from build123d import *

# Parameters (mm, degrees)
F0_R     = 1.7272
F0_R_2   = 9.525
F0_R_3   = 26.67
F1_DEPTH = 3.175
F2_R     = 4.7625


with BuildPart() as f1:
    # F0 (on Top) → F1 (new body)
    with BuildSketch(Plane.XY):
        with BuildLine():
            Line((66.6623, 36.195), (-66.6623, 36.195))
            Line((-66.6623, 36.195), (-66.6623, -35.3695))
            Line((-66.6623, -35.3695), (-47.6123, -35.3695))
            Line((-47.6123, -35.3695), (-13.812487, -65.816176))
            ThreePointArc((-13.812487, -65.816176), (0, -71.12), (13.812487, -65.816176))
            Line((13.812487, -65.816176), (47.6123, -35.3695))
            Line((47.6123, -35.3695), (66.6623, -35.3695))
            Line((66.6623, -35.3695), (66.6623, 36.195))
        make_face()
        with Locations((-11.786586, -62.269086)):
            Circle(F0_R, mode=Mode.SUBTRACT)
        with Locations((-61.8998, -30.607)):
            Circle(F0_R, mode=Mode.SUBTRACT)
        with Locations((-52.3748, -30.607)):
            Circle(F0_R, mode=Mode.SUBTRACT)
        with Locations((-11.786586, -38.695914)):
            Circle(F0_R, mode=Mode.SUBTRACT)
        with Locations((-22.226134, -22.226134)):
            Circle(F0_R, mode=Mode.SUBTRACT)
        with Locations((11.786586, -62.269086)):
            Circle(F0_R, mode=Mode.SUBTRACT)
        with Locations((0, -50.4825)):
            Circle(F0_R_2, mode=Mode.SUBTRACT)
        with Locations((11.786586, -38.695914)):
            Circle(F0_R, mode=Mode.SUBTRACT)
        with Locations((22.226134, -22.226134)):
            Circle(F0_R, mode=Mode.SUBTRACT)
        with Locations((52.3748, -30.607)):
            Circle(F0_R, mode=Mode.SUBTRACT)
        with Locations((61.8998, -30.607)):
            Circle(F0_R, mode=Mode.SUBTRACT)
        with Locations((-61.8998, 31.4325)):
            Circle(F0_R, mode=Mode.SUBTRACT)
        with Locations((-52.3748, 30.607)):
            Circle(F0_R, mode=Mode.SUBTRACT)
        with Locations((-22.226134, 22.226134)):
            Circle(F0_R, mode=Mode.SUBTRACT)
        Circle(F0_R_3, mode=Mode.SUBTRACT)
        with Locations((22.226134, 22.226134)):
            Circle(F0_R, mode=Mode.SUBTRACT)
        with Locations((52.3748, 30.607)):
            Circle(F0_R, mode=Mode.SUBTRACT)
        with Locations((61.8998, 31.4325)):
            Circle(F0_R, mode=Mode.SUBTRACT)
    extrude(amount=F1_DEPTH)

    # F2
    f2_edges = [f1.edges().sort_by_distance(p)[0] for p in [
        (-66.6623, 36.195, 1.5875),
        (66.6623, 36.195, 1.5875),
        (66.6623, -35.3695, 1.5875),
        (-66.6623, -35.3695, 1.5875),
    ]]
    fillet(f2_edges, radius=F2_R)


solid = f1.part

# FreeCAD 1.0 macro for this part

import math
import FreeCAD as App
import Part
import Sketcher

V = App.Vector
Q = App.Units.Quantity


def edges_at(feature, points):
    """Names of the edges that pass closest to the given points."""
    edges = feature.Shape.Edges
    near = lambda p: min(range(len(edges)), key=lambda i: edges[i].distToShape(Part.Vertex(*p))[0])
    return sorted({f"Edge{near(p) + 1}" for p in points})

doc = App.newDocument("Part")
params = doc.addObject("Spreadsheet::Sheet", "Params")
for row, (alias, value) in enumerate([
    ("sketch1_diameter", "2.1 in"),
    ("sketch1_diameter2", "0.75 in"),
    ("sketch1_diameter3", "0.136 in"),
    ("sketch1_radius", "0.8125 in"),
    ("sketch1_width", "0.75 in"),
    ("pad1_length", "0.125 in"),
    ("fillet_radius", "0.1875 in"),
], start=1):
    params.set(f"A{row}", alias)
    params.set(f"B{row}", "=" + value)
    params.setAlias(f"B{row}", alias)

body = doc.addObject("PartDesign::Body", "Body")

# Sketch on XY plane
sketch1 = body.newObject("Sketcher::SketchObject", "Sketch")
sketch1.AttachmentSupport = (doc.getObject("XY_Plane"), [""])
sketch1.MapMode = "FlatFace"
sketch1.addGeometry(Part.LineSegment(V(66.7, 36.2, 0), V(-66.7, 36.2, 0)), False)
sketch1.addGeometry(Part.LineSegment(V(-66.7, 36.2, 0), V(-66.7, -35.4, 0)), False)
sketch1.addGeometry(Part.LineSegment(V(-66.7, -35.4, 0), V(-47.6, -35.4, 0)), False)
sketch1.addGeometry(Part.LineSegment(V(-47.6, -35.4, 0), V(-13.8, -65.8, 0)), False)
sketch1.addGeometry(Part.ArcOfCircle(Part.Circle(V(0, -50.5, 0), V(0, 0, 1), 20.6), math.radians(-132), math.radians(-48)), False)
sketch1.addGeometry(Part.LineSegment(V(13.8, -65.8, 0), V(47.6, -35.4, 0)), False)
sketch1.addGeometry(Part.LineSegment(V(47.6, -35.4, 0), V(66.7, -35.4, 0)), False)
sketch1.addGeometry(Part.LineSegment(V(66.7, -35.4, 0), V(66.7, 36.2, 0)), False)
sketch1.addGeometry(Part.Circle(V(-11.8, -62.3, 0), V(0, 0, 1), 1.7), False)
sketch1.addGeometry(Part.Circle(V(-61.9, -30.6, 0), V(0, 0, 1), 1.7), False)
sketch1.addGeometry(Part.Circle(V(-52.4, -30.6, 0), V(0, 0, 1), 1.7), False)
sketch1.addGeometry(Part.Circle(V(-11.8, -38.7, 0), V(0, 0, 1), 1.7), False)
sketch1.addGeometry(Part.Circle(V(-22.2, -22.2, 0), V(0, 0, 1), 1.7), False)
sketch1.addGeometry(Part.Circle(V(11.8, -62.3, 0), V(0, 0, 1), 1.7), False)
sketch1.addGeometry(Part.Circle(V(0, -50.5, 0), V(0, 0, 1), 9.5), False)
sketch1.addGeometry(Part.Circle(V(11.8, -38.7, 0), V(0, 0, 1), 1.7), False)
sketch1.addGeometry(Part.Circle(V(22.2, -22.2, 0), V(0, 0, 1), 1.7), False)
sketch1.addGeometry(Part.Circle(V(52.4, -30.6, 0), V(0, 0, 1), 1.7), False)
sketch1.addGeometry(Part.Circle(V(61.9, -30.6, 0), V(0, 0, 1), 1.7), False)
sketch1.addGeometry(Part.Circle(V(-61.9, 31.4, 0), V(0, 0, 1), 1.7), False)
sketch1.addGeometry(Part.Circle(V(-52.4, 30.6, 0), V(0, 0, 1), 1.7), False)
sketch1.addGeometry(Part.Circle(V(-22.2, 22.2, 0), V(0, 0, 1), 1.7), False)
sketch1.addGeometry(Part.Circle(V(0, 0, 0), V(0, 0, 1), 26.7), False)
sketch1.addGeometry(Part.Circle(V(22.2, 22.2, 0), V(0, 0, 1), 1.7), False)
sketch1.addGeometry(Part.Circle(V(52.4, 30.6, 0), V(0, 0, 1), 1.7), False)
sketch1.addGeometry(Part.Circle(V(61.9, 31.4, 0), V(0, 0, 1), 1.7), False)
sketch1.addConstraint(Sketcher.Constraint("Coincident", 0, 2, 1, 1))
sketch1.addConstraint(Sketcher.Constraint("Coincident", 1, 2, 2, 1))
sketch1.addConstraint(Sketcher.Constraint("Coincident", 2, 2, 3, 1))
sketch1.addConstraint(Sketcher.Constraint("Tangent", 3, 2, 4, 1))
sketch1.addConstraint(Sketcher.Constraint("Tangent", 4, 2, 5, 1))
sketch1.addConstraint(Sketcher.Constraint("Coincident", 5, 2, 6, 1))
sketch1.addConstraint(Sketcher.Constraint("Coincident", 6, 2, 7, 1))
sketch1.addConstraint(Sketcher.Constraint("Coincident", 7, 2, 0, 1))
sketch1.addConstraint(Sketcher.Constraint("Horizontal", 0))
sketch1.addConstraint(Sketcher.Constraint("Vertical", 1))
sketch1.addConstraint(Sketcher.Constraint("Horizontal", 2))
sketch1.addConstraint(Sketcher.Constraint("Horizontal", 6))
sketch1.addConstraint(Sketcher.Constraint("Vertical", 7))
sketch1.addConstraint(Sketcher.Constraint("Coincident", 22, 3, -1, 1))
sketch1.addConstraint(Sketcher.Constraint("Coincident", 14, 3, 4, 3))
sketch1.addConstraint(Sketcher.Constraint("Equal", 8, 9))
sketch1.addConstraint(Sketcher.Constraint("Equal", 9, 10))
sketch1.addConstraint(Sketcher.Constraint("Equal", 10, 11))
sketch1.addConstraint(Sketcher.Constraint("Equal", 11, 12))
sketch1.addConstraint(Sketcher.Constraint("Equal", 12, 13))
sketch1.addConstraint(Sketcher.Constraint("Equal", 13, 15))
sketch1.addConstraint(Sketcher.Constraint("Equal", 15, 16))
sketch1.addConstraint(Sketcher.Constraint("Equal", 16, 17))
sketch1.addConstraint(Sketcher.Constraint("Equal", 17, 18))
sketch1.addConstraint(Sketcher.Constraint("Equal", 18, 19))
sketch1.addConstraint(Sketcher.Constraint("Equal", 19, 20))
sketch1.addConstraint(Sketcher.Constraint("Equal", 20, 21))
sketch1.addConstraint(Sketcher.Constraint("Equal", 21, 23))
sketch1.addConstraint(Sketcher.Constraint("Equal", 23, 24))
sketch1.addConstraint(Sketcher.Constraint("Equal", 24, 25))
sketch1.addConstraint(Sketcher.Constraint("Symmetric", 17, 3, 20, 3, -1, 1))
sketch1.addConstraint(Sketcher.Constraint("Symmetric", 16, 3, 21, 3, -1, 1))
sketch1.addConstraint(Sketcher.Constraint("Symmetric", 12, 3, 23, 3, -1, 1))
sketch1.addConstraint(Sketcher.Constraint("Symmetric", 10, 3, 24, 3, -1, 1))
sketch1.addConstraint(Sketcher.Constraint("Symmetric", 8, 3, 13, 3, -2))
sketch1.addConstraint(Sketcher.Constraint("Symmetric", 11, 3, 15, 3, -2))
sketch1.addConstraint(Sketcher.Constraint("Symmetric", 12, 3, 16, 3, -2))
sketch1.addConstraint(Sketcher.Constraint("Symmetric", 10, 3, 17, 3, -2))
sketch1.addConstraint(Sketcher.Constraint("Symmetric", 9, 3, 18, 3, -2))
sketch1.addConstraint(Sketcher.Constraint("Symmetric", 19, 3, 25, 3, -2))
sketch1.addConstraint(Sketcher.Constraint("Symmetric", 3, 2, 4, 2, -2))
sketch1.addConstraint(Sketcher.Constraint("Symmetric", 1, 2, 6, 2, -2))
sketch1.addConstraint(Sketcher.Constraint("Horizontal", 9, 3, 10, 3))
sketch1.addConstraint(Sketcher.Constraint("Vertical", 8, 3, 11, 3))
sketch1.addConstraint(Sketcher.Constraint("Vertical", 9, 3, 19, 3))
sketch1.addConstraint(Sketcher.Constraint("Diameter", 22, Q("2.1 in")))
sketch1.addConstraint(Sketcher.Constraint("Diameter", 14, Q("0.75 in")))
sketch1.addConstraint(Sketcher.Constraint("Diameter", 8, Q("0.136 in")))
sketch1.addConstraint(Sketcher.Constraint("Radius", 4, Q("0.8125 in")))
sketch1.addConstraint(Sketcher.Constraint("DistanceX", 2, 1, 2, 2, Q("0.75 in")))
sketch1.addConstraint(Sketcher.Constraint("DistanceX", 0, 2, 0, 1, Q("5.249 in")))
sketch1.addConstraint(Sketcher.Constraint("DistanceY", 10, 3, 20, 3, Q("2.41 in")))
sketch1.addConstraint(Sketcher.Constraint("DistanceY", 20, 3, 0, 2, Q("0.22 in")))
sketch1.addConstraint(Sketcher.Constraint("DistanceY", 1, 2, 1, 1, Q("2.8175 in")))
sketch1.addConstraint(Sketcher.Constraint("DistanceX", 9, 3, -1, 1, Q("2.437 in")))
sketch1.addConstraint(Sketcher.Constraint("DistanceX", 10, 3, -1, 1, Q("2.062 in")))
sketch1.addConstraint(Sketcher.Constraint("DistanceY", 19, 3, 0, 2, Q("0.1875 in")))
sketch1.addConstraint(Sketcher.Constraint("DistanceY", 4, 3, -1, 1, Q("1.9875 in")))
sketch1.addConstraint(Sketcher.Constraint("DistanceX", 3, 2, 8, 3, 2.025901))
sketch1.addConstraint(Sketcher.Constraint("DistanceY", 8, 3, 11, 3, 23.573172))
sketch1.addConstraint(Sketcher.Constraint("DistanceY", 11, 3, 12, 3, 16.46978))
sketch1.addConstraint(Sketcher.Constraint("DistanceX", 12, 3, 13, 3, 34.01272))
sketch1.addConstraint(Sketcher.Constraint("DistanceY", 11, 3, 21, 3, 60.922048))
sketch1.setExpression("Constraints[45]", "Params.sketch1_diameter")
sketch1.setExpression("Constraints[46]", "Params.sketch1_diameter2")
sketch1.setExpression("Constraints[47]", "Params.sketch1_diameter3")
sketch1.setExpression("Constraints[48]", "Params.sketch1_radius")
sketch1.setExpression("Constraints[49]", "Params.sketch1_width")
pad1 = body.newObject("PartDesign::Pad", "Pad")
pad1.Profile = sketch1
pad1.setExpression("Length", "Params.pad1_length")
doc.recompute()

fillet = body.newObject("PartDesign::Fillet", "Fillet")
fillet.Base = (pad1, edges_at(pad1, [
    (-66.662, 36.195, 1.587),
    (66.662, 36.195, 1.587),
    (66.662, -35.37, 1.587),
    (-66.662, -35.37, 1.587),
]))
fillet.setExpression("Radius", "Params.fillet_radius")

doc.recompute()
